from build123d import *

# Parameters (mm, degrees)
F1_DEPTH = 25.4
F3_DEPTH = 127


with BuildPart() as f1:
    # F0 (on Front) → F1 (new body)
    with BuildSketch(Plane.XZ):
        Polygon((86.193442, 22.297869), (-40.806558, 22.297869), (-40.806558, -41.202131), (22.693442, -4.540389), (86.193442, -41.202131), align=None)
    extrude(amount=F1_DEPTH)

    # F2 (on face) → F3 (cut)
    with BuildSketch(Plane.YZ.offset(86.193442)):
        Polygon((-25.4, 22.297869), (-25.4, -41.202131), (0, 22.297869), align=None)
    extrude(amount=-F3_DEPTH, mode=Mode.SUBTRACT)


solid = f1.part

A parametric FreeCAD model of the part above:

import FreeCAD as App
import Part
import Sketcher

V = App.Vector
Q = App.Units.Quantity


def add_polygon(sketch, points):
    """Adds a closed chain of lines whose ends are joined by coincident constraints."""
    first, n = sketch.GeometryCount, len(points)
    for a, b in zip(points, points[1:] + points[:1]):
        sketch.addGeometry(Part.LineSegment(App.Vector(*a, 0), App.Vector(*b, 0)), False)
    for i in range(n):
        sketch.addConstraint(Sketcher.Constraint("Coincident", first + i, 2, first + (i + 1) % n, 1))

doc = App.newDocument("Part")
body = doc.addObject("PartDesign::Body", "Body")

# Sketch on XZ plane
sketch1 = body.newObject("Sketcher::SketchObject", "Sketch")
sketch1.AttachmentSupport = (doc.getObject("XZ_Plane"), [""])
sketch1.MapMode = "FlatFace"
add_polygon(sketch1, [(86, 22), (-41, 22), (-41, -41), (23, -5), (86, -41)])  # lines 0-4
sketch1.addConstraint([
    Sketcher.Constraint("Horizontal", 0),
    Sketcher.Constraint("Vertical", 1),
    Sketcher.Constraint("Vertical", 4),
    Sketcher.Constraint("Horizontal", 1, 2, 3, 2),
    Sketcher.Constraint("Equal", 2, 3),
    Sketcher.Constraint("DistanceX", 0, 2, 0, 1, Q("5 in")),
    Sketcher.Constraint("DistanceY", 1, 2, 1, 1, Q("2.5 in")),
    Sketcher.Constraint("Angle", 2, Q("30 deg")),
    Sketcher.Constraint("DistanceX", 0, 2, -1, 1, 40.806558),
    Sketcher.Constraint("DistanceY", -1, 1, 0, 2, 22.297869),
])
pad1 = body.newObject("PartDesign::Pad", "Pad")
pad1.Profile = sketch1
pad1.Length = Q("1 in")

# Sketch on YZ plane
sketch2 = body.newObject("Sketcher::SketchObject", "Sketch001")
sketch2.AttachmentSupport = (doc.getObject("YZ_Plane"), [""])
sketch2.MapMode = "FlatFace"
sketch2.AttachmentOffset = App.Placement(V(0, 0, 86.193442), App.Rotation())
add_polygon(sketch2, [(-25, 22), (-25, -41), (0, 22)])  # lines 0-2
sketch2.addConstraint([
    Sketcher.Constraint("Vertical", 0),
    Sketcher.Constraint("Horizontal", 2),
    Sketcher.Constraint("PointOnObject", 1, 2, -2),
    Sketcher.Constraint("DistanceX", 2, 2, 2, 1, Q("1 in")),
    Sketcher.Constraint("DistanceY", 0, 2, 0, 1, Q("2.5 in")),
    Sketcher.Constraint("DistanceY", 0, 2, -1, 1, 41.202131),
])
pocket1 = body.newObject("PartDesign::Pocket", "Pocket")
pocket1.Profile = sketch2
pocket1.Length = Q("5 in")

doc.recompute()
